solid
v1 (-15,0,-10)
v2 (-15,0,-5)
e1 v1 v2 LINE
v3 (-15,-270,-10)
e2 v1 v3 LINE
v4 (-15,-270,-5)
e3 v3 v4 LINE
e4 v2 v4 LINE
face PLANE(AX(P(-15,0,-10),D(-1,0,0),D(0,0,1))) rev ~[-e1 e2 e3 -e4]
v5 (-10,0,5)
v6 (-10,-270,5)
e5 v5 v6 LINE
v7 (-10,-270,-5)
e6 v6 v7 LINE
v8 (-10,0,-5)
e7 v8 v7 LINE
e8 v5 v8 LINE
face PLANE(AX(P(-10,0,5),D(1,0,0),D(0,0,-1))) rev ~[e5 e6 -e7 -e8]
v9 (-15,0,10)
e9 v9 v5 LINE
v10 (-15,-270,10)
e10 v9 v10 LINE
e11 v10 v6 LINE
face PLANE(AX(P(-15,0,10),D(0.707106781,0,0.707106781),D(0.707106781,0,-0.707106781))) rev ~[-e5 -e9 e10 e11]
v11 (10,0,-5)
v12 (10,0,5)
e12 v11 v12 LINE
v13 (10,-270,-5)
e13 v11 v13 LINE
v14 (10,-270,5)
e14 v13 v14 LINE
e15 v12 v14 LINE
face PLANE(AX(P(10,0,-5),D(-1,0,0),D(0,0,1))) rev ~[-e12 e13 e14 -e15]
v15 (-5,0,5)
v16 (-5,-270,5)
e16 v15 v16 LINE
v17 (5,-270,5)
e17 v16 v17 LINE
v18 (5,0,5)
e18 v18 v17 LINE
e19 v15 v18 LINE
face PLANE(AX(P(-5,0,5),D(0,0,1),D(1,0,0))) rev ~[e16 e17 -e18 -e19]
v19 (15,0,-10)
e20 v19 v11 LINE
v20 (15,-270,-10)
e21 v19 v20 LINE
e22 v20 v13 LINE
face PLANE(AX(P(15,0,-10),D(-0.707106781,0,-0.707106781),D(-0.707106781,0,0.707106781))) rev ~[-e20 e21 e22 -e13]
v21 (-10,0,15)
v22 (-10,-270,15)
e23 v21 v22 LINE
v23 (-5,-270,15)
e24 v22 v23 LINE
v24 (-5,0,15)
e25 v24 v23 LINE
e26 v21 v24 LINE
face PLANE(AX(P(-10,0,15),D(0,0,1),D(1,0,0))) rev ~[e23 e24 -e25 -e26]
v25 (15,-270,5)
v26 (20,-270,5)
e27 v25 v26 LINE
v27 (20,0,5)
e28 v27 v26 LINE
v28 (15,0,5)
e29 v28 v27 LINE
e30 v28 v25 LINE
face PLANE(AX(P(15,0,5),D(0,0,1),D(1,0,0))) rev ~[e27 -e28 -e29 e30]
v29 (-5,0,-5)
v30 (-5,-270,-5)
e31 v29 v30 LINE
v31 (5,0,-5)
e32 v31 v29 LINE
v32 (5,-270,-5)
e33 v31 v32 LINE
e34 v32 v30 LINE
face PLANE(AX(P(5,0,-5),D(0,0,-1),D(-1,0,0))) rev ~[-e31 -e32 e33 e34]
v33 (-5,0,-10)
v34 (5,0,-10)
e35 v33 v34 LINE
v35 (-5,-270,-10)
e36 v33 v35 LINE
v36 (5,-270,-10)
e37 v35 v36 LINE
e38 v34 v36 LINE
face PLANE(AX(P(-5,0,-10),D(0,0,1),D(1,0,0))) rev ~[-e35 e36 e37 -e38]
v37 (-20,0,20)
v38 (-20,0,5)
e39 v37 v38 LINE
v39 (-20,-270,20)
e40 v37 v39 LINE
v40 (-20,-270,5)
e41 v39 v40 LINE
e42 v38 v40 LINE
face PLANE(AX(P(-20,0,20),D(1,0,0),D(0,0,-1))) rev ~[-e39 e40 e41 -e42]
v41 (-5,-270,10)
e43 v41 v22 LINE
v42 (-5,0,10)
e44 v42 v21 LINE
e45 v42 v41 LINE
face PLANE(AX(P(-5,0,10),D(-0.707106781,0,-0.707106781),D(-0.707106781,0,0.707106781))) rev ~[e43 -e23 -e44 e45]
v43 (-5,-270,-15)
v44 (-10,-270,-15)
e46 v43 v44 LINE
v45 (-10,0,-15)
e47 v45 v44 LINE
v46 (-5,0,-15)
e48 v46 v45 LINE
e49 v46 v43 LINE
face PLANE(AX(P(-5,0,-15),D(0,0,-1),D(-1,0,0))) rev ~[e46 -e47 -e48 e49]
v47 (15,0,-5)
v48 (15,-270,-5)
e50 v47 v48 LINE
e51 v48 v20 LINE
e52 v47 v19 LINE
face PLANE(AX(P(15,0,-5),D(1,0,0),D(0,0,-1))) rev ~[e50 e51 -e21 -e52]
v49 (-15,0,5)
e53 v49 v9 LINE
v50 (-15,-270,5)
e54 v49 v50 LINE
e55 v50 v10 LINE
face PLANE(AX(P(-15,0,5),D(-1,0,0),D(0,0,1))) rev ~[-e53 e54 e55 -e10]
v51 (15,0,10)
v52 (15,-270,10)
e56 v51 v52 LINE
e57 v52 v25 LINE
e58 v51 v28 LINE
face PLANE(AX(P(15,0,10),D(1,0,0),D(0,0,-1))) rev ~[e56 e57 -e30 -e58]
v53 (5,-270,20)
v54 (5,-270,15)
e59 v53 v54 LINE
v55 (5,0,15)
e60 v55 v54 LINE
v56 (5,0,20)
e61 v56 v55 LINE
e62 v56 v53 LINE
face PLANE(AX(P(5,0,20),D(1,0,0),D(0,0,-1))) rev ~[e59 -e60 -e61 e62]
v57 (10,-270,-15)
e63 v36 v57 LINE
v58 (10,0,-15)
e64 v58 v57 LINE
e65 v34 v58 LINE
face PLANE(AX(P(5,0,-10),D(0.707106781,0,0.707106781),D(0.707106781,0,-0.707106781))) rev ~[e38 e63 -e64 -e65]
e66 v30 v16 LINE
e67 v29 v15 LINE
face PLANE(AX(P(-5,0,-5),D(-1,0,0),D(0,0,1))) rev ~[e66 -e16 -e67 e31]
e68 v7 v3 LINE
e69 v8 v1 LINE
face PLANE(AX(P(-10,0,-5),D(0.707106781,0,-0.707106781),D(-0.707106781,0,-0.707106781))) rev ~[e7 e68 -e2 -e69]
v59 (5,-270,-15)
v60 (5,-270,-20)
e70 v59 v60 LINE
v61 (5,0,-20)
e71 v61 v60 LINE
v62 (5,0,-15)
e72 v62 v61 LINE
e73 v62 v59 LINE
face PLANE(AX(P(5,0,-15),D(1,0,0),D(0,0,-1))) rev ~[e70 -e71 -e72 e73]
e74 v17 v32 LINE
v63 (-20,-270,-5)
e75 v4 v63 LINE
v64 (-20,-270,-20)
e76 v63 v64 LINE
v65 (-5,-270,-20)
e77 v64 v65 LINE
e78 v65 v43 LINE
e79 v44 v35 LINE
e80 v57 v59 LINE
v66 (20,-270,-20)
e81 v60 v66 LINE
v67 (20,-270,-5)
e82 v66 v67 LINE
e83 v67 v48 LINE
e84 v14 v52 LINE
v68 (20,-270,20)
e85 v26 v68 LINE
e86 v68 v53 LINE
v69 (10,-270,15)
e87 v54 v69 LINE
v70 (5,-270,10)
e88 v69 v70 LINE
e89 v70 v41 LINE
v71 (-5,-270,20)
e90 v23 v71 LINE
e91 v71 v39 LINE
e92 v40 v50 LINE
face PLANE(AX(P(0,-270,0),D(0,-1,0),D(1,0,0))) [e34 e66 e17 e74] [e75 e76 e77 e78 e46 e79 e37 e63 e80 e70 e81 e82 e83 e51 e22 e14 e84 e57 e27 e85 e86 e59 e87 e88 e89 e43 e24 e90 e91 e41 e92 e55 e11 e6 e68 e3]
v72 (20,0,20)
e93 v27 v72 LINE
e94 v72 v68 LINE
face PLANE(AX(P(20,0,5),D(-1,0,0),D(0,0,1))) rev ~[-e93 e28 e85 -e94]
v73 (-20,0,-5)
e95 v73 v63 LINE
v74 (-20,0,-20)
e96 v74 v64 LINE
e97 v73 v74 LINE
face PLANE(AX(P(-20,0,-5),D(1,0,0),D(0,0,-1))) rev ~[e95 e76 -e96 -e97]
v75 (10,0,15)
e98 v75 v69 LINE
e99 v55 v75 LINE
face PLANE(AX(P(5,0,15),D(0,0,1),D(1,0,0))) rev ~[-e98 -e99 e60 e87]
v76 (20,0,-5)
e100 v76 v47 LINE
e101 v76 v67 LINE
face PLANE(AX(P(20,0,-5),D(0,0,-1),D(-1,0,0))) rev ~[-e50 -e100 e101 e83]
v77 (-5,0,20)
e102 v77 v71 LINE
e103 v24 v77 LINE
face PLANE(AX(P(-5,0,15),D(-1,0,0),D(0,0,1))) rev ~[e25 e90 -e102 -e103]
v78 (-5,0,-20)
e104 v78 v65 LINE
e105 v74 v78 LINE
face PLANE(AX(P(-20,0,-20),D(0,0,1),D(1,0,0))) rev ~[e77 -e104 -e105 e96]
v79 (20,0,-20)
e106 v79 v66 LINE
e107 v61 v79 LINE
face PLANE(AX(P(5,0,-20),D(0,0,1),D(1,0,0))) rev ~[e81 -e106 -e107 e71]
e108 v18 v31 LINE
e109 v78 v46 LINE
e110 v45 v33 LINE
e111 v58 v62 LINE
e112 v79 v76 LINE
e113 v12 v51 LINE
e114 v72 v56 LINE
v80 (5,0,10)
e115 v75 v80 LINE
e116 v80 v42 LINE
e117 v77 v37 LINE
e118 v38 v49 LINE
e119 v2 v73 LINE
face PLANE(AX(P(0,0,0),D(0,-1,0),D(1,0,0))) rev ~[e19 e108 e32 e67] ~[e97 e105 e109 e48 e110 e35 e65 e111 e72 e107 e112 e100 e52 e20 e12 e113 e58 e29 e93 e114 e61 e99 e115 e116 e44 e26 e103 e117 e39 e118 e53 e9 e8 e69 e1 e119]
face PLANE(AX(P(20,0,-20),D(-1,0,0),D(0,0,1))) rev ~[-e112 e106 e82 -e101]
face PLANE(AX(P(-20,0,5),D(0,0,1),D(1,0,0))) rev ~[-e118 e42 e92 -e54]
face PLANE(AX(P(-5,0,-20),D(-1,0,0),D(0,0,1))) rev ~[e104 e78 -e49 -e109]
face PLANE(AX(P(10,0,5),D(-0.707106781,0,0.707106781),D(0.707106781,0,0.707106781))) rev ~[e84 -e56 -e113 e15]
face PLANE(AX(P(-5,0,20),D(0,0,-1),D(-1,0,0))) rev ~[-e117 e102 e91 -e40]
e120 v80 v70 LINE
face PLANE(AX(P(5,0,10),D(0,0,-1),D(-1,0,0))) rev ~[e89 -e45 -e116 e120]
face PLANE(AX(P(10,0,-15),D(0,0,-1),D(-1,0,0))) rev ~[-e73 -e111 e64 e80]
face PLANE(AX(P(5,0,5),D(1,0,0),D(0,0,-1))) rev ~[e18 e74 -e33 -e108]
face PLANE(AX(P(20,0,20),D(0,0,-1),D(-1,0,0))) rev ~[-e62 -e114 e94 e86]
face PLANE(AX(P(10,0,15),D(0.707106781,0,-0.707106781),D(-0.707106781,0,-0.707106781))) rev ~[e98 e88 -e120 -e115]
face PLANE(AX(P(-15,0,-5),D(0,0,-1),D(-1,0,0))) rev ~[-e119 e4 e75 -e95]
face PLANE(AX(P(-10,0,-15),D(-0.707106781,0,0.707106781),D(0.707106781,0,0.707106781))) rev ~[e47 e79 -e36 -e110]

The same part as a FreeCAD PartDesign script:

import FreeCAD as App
import Part
import Sketcher

V = App.Vector


def add_polygon(sketch, points):
    """Adds a closed chain of lines whose ends are joined by coincident constraints."""
    first, n = sketch.GeometryCount, len(points)
    for a, b in zip(points, points[1:] + points[:1]):
        sketch.addGeometry(Part.LineSegment(App.Vector(*a, 0), App.Vector(*b, 0)), False)
    for i in range(n):
        sketch.addConstraint(Sketcher.Constraint("Coincident", first + i, 2, first + (i + 1) % n, 1))

doc = App.newDocument("Part")
body = doc.addObject("PartDesign::Body", "Body")

sketch1 = body.newObject("Sketcher::SketchObject", "Sketch")
sketch1.AttachmentSupport = (doc.getObject("XZ_Plane"), [""])
sketch1.MapMode = "FlatFace"
add_polygon(sketch1, [(20, 5), (20, 20), (5, 20), (5, 15), (10, 15), (5, 10), (-5, 10), (-10, 15), (-5, 15), (-5, 20), (-20, 20), (-20, 5), (-15, 5), (-15, 10), (-10, 5), (-10, -5), (-15, -10), (-15, -5), (-20, -5), (-20, -20), (-5, -20), (-5, -15), (-10, -15), (-5, -10), (5, -10), (10, -15), (5, -15), (5, -20), (20, -20), (20, -5), (15, -5), (15, -10), (10, -5), (10, 5), (15, 10), (15, 5)])
add_polygon(sketch1, [(-5, -5), (-5, 5), (5, 5), (5, -5)])
sketch1.addConstraint(Sketcher.Constraint("Vertical", 0))
sketch1.addConstraint(Sketcher.Constraint("Horizontal", 1))
sketch1.addConstraint(Sketcher.Constraint("Vertical", 2))
sketch1.addConstraint(Sketcher.Constraint("Horizontal", 3))
sketch1.addConstraint(Sketcher.Constraint("Horizontal", 5))
sketch1.addConstraint(Sketcher.Constraint("Horizontal", 7))
sketch1.addConstraint(Sketcher.Constraint("Vertical", 8))
sketch1.addConstraint(Sketcher.Constraint("Horizontal", 9))
sketch1.addConstraint(Sketcher.Constraint("Vertical", 10))
sketch1.addConstraint(Sketcher.Constraint("Horizontal", 11))
sketch1.addConstraint(Sketcher.Constraint("Vertical", 12))
sketch1.addConstraint(Sketcher.Constraint("Vertical", 14))
sketch1.addConstraint(Sketcher.Constraint("Vertical", 16))
sketch1.addConstraint(Sketcher.Constraint("Horizontal", 17))
sketch1.addConstraint(Sketcher.Constraint("Vertical", 18))
sketch1.addConstraint(Sketcher.Constraint("Horizontal", 19))
sketch1.addConstraint(Sketcher.Constraint("Vertical", 20))
sketch1.addConstraint(Sketcher.Constraint("Horizontal", 21))
sketch1.addConstraint(Sketcher.Constraint("Horizontal", 23))
sketch1.addConstraint(Sketcher.Constraint("Horizontal", 25))
sketch1.addConstraint(Sketcher.Constraint("Vertical", 26))
sketch1.addConstraint(Sketcher.Constraint("Horizontal", 27))
sketch1.addConstraint(Sketcher.Constraint("Vertical", 28))
sketch1.addConstraint(Sketcher.Constraint("Horizontal", 29))
sketch1.addConstraint(Sketcher.Constraint("Vertical", 30))
sketch1.addConstraint(Sketcher.Constraint("Vertical", 32))
sketch1.addConstraint(Sketcher.Constraint("Vertical", 34))
sketch1.addConstraint(Sketcher.Constraint("Horizontal", 35))
sketch1.addConstraint(Sketcher.Constraint("Vertical", 36))
sketch1.addConstraint(Sketcher.Constraint("Horizontal", 37))
sketch1.addConstraint(Sketcher.Constraint("Vertical", 38))
sketch1.addConstraint(Sketcher.Constraint("Horizontal", 39))
sketch1.addConstraint(Sketcher.Constraint("Symmetric", 0, 2, 18, 2, -1, 1))
sketch1.addConstraint(Sketcher.Constraint("Symmetric", 2, 2, 20, 2, -1, 1))
sketch1.addConstraint(Sketcher.Constraint("Symmetric", 4, 2, 22, 2, -1, 1))
sketch1.addConstraint(Sketcher.Constraint("Symmetric", 6, 2, 24, 2, -1, 1))
sketch1.addConstraint(Sketcher.Constraint("Symmetric", 8, 2, 26, 2, -1, 1))
sketch1.addConstraint(Sketcher.Constraint("Symmetric", 10, 2, 28, 2, -1, 1))
sketch1.addConstraint(Sketcher.Constraint("Symmetric", 12, 2, 30, 2, -1, 1))
sketch1.addConstraint(Sketcher.Constraint("Symmetric", 13, 2, 31, 2, -1, 1))
sketch1.addConstraint(Sketcher.Constraint("Symmetric", 15, 2, 33, 2, -1, 1))
sketch1.addConstraint(Sketcher.Constraint("Symmetric", 36, 2, 38, 2, -1, 1))
sketch1.addConstraint(Sketcher.Constraint("Symmetric", 3, 2, 6, 2, -2))
sketch1.addConstraint(Sketcher.Constraint("Symmetric", 1, 2, 8, 2, -2))
sketch1.addConstraint(Sketcher.Constraint("Symmetric", 17, 2, 28, 2, -2))
sketch1.addConstraint(Sketcher.Constraint("Symmetric", 15, 2, 30, 2, -2))
sketch1.addConstraint(Sketcher.Constraint("Perpendicular", 4, 6))
sketch1.addConstraint(Sketcher.Constraint("Parallel", 6, 13))
sketch1.addConstraint(Sketcher.Constraint("Perpendicular", 13, 15))
sketch1.addConstraint(Sketcher.Constraint("Parallel", 15, 22))
sketch1.addConstraint(Sketcher.Constraint("Perpendicular", 22, 24))
sketch1.addConstraint(Sketcher.Constraint("Perpendicular", 31, 33))
sketch1.addConstraint(Sketcher.Constraint("Horizontal", 5, 2, 12, 2))
sketch1.addConstraint(Sketcher.Constraint("Horizontal", 11, 2, 13, 2))
sketch1.addConstraint(Sketcher.Constraint("Horizontal", 14, 2, 16, 2))
sketch1.addConstraint(Sketcher.Constraint("Horizontal", 32, 2, 34, 2))
sketch1.addConstraint(Sketcher.Constraint("Horizontal", 35, 2, 36, 2))
sketch1.addConstraint(Sketcher.Constraint("Vertical", 2, 2, 4, 2))
sketch1.addConstraint(Sketcher.Constraint("Vertical", 6, 2, 13, 2))
sketch1.addConstraint(Sketcher.Constraint("Vertical", 22, 2, 36, 2))
sketch1.addConstraint(Sketcher.Constraint("Equal", 7, 11))
sketch1.addConstraint(Sketcher.Constraint("Equal", 27, 0))
sketch1.addConstraint(Sketcher.Constraint("Equal", 8, 12))
sketch1.addConstraint(Sketcher.Constraint("Equal", 39, 14))
sketch1.addConstraint(Sketcher.Constraint("DistanceX", 1, 2, 1, 1, 15.0))
sketch1.addConstraint(Sketcher.Constraint("DistanceX", 5, 2, 5, 1, 10.0))
pad1 = body.newObject("PartDesign::Pad", "Pad")
pad1.Profile = sketch1
pad1.Length = 270

doc.recompute()
